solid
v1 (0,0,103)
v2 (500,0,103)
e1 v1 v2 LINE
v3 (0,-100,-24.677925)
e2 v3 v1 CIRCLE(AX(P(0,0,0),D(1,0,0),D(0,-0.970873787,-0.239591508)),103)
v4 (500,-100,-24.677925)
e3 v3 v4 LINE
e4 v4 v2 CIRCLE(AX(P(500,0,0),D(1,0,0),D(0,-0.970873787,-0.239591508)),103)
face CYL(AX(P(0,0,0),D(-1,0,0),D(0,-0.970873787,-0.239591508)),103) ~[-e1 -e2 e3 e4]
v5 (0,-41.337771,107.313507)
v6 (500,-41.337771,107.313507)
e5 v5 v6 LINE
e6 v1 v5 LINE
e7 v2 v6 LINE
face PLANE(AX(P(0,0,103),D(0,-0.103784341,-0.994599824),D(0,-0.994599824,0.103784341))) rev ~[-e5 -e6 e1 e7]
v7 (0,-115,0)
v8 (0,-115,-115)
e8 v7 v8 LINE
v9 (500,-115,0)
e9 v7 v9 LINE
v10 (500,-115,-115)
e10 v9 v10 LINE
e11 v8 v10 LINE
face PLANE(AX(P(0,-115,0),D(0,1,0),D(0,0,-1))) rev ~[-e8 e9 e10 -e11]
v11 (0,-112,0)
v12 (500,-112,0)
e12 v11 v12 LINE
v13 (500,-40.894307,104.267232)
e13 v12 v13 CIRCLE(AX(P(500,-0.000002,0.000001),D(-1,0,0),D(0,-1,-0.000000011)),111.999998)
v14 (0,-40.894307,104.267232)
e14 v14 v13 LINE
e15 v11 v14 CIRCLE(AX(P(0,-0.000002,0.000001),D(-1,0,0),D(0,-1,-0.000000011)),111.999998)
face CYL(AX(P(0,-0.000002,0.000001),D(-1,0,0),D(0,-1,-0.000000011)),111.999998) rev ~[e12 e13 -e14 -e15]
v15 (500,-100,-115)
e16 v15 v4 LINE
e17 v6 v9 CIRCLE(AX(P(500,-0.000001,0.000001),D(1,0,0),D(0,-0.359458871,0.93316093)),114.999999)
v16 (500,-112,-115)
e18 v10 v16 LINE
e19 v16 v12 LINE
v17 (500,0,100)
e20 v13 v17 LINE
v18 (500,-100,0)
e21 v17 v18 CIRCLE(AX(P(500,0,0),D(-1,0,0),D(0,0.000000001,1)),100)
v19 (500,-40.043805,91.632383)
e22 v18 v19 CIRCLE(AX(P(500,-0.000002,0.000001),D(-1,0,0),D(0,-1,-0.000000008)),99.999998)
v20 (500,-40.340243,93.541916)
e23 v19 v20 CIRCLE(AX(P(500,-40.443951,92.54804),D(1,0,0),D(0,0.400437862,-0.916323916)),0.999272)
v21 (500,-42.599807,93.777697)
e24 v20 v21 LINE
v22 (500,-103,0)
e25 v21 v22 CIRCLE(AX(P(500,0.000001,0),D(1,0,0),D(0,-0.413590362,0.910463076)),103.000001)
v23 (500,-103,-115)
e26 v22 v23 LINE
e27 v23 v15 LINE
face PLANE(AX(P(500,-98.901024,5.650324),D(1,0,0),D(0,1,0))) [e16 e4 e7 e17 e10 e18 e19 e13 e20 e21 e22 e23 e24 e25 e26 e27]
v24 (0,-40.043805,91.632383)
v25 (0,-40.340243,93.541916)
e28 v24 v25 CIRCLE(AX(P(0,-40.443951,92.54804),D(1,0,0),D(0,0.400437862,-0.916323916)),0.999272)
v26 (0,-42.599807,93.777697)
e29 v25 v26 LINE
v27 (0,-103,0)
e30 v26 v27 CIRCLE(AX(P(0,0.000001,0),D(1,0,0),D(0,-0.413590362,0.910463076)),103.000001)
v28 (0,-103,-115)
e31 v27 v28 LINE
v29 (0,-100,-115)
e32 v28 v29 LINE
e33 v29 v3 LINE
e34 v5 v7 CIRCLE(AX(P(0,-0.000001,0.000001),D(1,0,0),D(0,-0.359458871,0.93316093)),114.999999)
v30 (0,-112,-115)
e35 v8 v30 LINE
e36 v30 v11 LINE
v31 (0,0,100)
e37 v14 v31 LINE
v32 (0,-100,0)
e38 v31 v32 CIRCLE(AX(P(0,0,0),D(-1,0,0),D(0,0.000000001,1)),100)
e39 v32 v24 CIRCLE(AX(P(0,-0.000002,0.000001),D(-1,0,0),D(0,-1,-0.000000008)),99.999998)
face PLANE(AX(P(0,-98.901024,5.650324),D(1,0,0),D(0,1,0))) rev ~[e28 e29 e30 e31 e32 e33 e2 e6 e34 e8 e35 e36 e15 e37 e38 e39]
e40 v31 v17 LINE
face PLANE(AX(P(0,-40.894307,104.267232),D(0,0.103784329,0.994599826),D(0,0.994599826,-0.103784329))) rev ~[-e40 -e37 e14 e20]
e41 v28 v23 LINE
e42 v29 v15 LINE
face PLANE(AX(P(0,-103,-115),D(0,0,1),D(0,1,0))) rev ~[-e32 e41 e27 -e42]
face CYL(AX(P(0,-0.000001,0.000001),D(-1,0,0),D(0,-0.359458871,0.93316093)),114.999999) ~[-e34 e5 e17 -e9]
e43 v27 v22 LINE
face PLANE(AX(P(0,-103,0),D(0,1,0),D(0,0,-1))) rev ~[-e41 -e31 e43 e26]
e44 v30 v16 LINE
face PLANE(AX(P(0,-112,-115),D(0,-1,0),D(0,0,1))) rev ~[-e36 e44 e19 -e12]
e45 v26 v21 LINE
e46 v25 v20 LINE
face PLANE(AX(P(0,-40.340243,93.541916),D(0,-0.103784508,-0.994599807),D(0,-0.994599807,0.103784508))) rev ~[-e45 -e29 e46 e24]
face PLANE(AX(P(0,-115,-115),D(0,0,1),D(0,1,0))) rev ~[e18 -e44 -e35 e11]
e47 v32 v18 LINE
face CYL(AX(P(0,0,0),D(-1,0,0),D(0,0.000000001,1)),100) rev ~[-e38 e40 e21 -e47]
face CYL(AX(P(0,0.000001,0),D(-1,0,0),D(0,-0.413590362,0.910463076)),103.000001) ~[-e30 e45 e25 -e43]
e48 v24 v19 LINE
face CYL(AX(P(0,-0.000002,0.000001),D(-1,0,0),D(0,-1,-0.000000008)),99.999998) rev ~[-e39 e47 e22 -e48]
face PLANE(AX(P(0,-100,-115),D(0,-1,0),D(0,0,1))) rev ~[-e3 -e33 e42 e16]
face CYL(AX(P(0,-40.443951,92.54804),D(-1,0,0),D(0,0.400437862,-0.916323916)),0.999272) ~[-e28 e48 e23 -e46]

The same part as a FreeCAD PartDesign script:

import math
import FreeCAD as App
import Part
import Sketcher
from FreeCAD import Vector
Q = App.Units.Quantity

doc = App.newDocument("Part")
params = doc.addObject("Spreadsheet::Sheet", "Params")
for row, (alias, value) in enumerate([
    ("sketch1_radius", "111.999998 mm"),
    ("sketch1_radius2", "100 mm"),
    ("sketch1_radius3", "103.000001 mm"),
    ("sketch1_height", "115 mm"),
    ("pad1_length", "500 mm"),
], start=1):
    params.set(f"A{row}", alias)
    params.set(f"B{row}", "=" + value)
    params.setAlias(f"B{row}", alias)

body = doc.addObject("PartDesign::Body", "Body")

# Sketch on YZ plane
sketch1 = body.newObject("Sketcher::SketchObject", "Sketch")
sketch1.AttachmentSupport = (doc.getObject("YZ_Plane"), [""])
sketch1.MapMode = "FlatFace"
sketch1.addGeometry([
    Part.ArcOfCircle(Part.Circle(Vector(0, 0, 0), Vector(0, 0, 1), 112), math.radians(111), math.radians(180)),  # 0
    Part.LineSegment(Vector(-40.9, 104.3, 0), Vector(0, 100, 0)),  # 1
    Part.ArcOfCircle(Part.Circle(Vector(0, 0, 0), Vector(0, 0, 1), 100), math.radians(-180), math.radians(90)),  # 2
    Part.ArcOfCircle(Part.Circle(Vector(0, 0, 0), Vector(0, 0, 1), 100), math.radians(114), math.radians(180)),  # 3
    Part.ArcOfCircle(Part.Circle(Vector(-40.4, 92.5, 0), Vector(0, 0, 1), 1), math.radians(-66), math.radians(84)),  # 4
    Part.LineSegment(Vector(-40.3, 93.5, 0), Vector(-42.6, 93.8, 0)),  # 5
    Part.ArcOfCircle(Part.Circle(Vector(0, 0, 0), Vector(0, 0, 1), 103), math.radians(114), math.radians(180)),  # 6
    Part.LineSegment(Vector(-103, 0, 0), Vector(-103, -115, 0)),  # 7
    Part.LineSegment(Vector(-103, -115, 0), Vector(-100, -115, 0)),  # 8
    Part.LineSegment(Vector(-100, -115, 0), Vector(-100, -24.7, 0)),  # 9
    Part.ArcOfCircle(Part.Circle(Vector(0, 0, 0), Vector(0, 0, 1), 103), math.radians(-166), math.radians(90)),  # 10
    Part.LineSegment(Vector(0, 103, 0), Vector(-41.3, 107.3, 0)),  # 11
    Part.ArcOfCircle(Part.Circle(Vector(0, 0, 0), Vector(0, 0, 1), 115), math.radians(111), math.radians(180)),  # 12
    Part.LineSegment(Vector(-115, 0, 0), Vector(-115, -115, 0)),  # 13
    Part.LineSegment(Vector(-115, -115, 0), Vector(-112, -115, 0)),  # 14
    Part.LineSegment(Vector(-112, -115, 0), Vector(-112, 0, 0)),  # 15
], False)
sketch1.addConstraint([
    Sketcher.Constraint("Coincident", 0, 1, 1, 1),
    Sketcher.Constraint("Coincident", 1, 2, 2, 2),
    Sketcher.Constraint("Tangent", 2, 1, 3, 2),
    Sketcher.Constraint("Tangent", 3, 1, 4, 1),
    Sketcher.Constraint("Tangent", 4, 2, 5, 1),
    Sketcher.Constraint("Coincident", 5, 2, 6, 1),
    Sketcher.Constraint("Tangent", 6, 2, 7, 1),
    Sketcher.Constraint("Coincident", 7, 2, 8, 1),
    Sketcher.Constraint("Coincident", 8, 2, 9, 1),
    Sketcher.Constraint("Coincident", 9, 2, 10, 1),
    Sketcher.Constraint("Coincident", 10, 2, 11, 1),
    Sketcher.Constraint("Coincident", 11, 2, 12, 1),
    Sketcher.Constraint("Tangent", 12, 2, 13, 1),
    Sketcher.Constraint("Coincident", 13, 2, 14, 1),
    Sketcher.Constraint("Coincident", 14, 2, 15, 1),
    Sketcher.Constraint("Tangent", 15, 2, 0, 2),
    Sketcher.Constraint("Vertical", 7),
    Sketcher.Constraint("Horizontal", 8),
    Sketcher.Constraint("Vertical", 9),
    Sketcher.Constraint("Vertical", 13),
    Sketcher.Constraint("Horizontal", 14),
    Sketcher.Constraint("Vertical", 15),
    Sketcher.Constraint("Coincident", 0, 3, -1, 1),
    Sketcher.Constraint("Coincident", 2, 3, -1, 1),
    Sketcher.Constraint("Coincident", 6, 3, -1, 1),
    Sketcher.Constraint("Coincident", 10, 3, -1, 1),
    Sketcher.Constraint("Coincident", 12, 3, -1, 1),
    Sketcher.Constraint("Equal", 2, 3),
    Sketcher.Constraint("Equal", 6, 10),
    Sketcher.Constraint("PointOnObject", 1, 2, -2),
    Sketcher.Constraint("PointOnObject", 2, 1, -1),
    Sketcher.Constraint("PointOnObject", 10, 2, -2),
    Sketcher.Constraint("Parallel", 1, 5),
    Sketcher.Constraint("Parallel", 5, 11),
    Sketcher.Constraint("Horizontal", 8, 2, 13, 2),
    Sketcher.Constraint("Vertical", 2, 1, 8, 2),
    Sketcher.Constraint("Equal", 8, 14),
    Sketcher.Constraint("Radius", 0, Q("111.999998 mm")),
    Sketcher.Constraint("Radius", 2, Q("100 mm")),
    Sketcher.Constraint("Radius", 6, Q("103.000001 mm")),
    Sketcher.Constraint("DistanceY", 7, 2, 7, 1, Q("115 mm")),
    Sketcher.Constraint("Radius", 4, Q("0.999272 mm")),
    Sketcher.Constraint("DistanceX", 0, 1, 3, 1, Q("0.850502 mm")),
    Sketcher.Constraint("DistanceX", 4, 3, -1, 1, Q("40.443951 mm")),
])
sketch1.setExpression("Constraints[37]", "Params.sketch1_radius")
sketch1.setExpression("Constraints[38]", "Params.sketch1_radius2")
sketch1.setExpression("Constraints[39]", "Params.sketch1_radius3")
sketch1.setExpression("Constraints[40]", "Params.sketch1_height")
pad1 = body.newObject("PartDesign::Pad", "Pad")
pad1.Profile = sketch1
pad1.setExpression("Length", "Params.pad1_length")

doc.recompute()
